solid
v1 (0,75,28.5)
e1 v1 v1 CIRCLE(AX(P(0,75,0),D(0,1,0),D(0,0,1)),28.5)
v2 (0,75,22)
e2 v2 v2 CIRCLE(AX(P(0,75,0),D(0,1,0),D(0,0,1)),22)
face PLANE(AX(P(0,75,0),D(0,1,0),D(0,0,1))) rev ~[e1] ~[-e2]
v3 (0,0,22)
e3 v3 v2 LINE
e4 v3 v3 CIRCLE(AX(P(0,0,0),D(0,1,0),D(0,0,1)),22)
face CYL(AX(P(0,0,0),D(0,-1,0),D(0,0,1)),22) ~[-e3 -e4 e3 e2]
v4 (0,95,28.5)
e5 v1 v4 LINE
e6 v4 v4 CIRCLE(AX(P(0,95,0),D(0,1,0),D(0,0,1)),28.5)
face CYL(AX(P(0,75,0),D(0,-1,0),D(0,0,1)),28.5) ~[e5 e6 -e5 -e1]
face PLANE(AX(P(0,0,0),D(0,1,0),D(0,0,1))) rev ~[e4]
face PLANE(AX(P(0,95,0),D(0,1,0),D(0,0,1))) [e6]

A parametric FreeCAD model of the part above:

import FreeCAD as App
import Part
import Sketcher

V = App.Vector
Q = App.Units.Quantity

doc = App.newDocument("Part")
params = doc.addObject("Spreadsheet::Sheet", "Params")
for row, (alias, value) in enumerate([
    ("sketch1_diameter", "44 mm"),
    ("pad1_length", "75 mm"),
    ("sketch2_diameter", "57 mm"),
    ("pad2_length", "20 mm"),
], start=1):
    params.set(f"A{row}", alias)
    params.set(f"B{row}", "=" + value)
    params.setAlias(f"B{row}", alias)

body = doc.addObject("PartDesign::Body", "Body")

# Sketch on XZ plane
sketch1 = doc.addObject("Sketcher::SketchObject", "Sketch")
body.addObject(sketch1)
sketch1.AttachmentSupport = (doc.XZ_Plane, [""])
sketch1.MapMode = "FlatFace"
sketch1.addGeometry(Part.Circle(V(0, 0, 0), V(0, 0, 1), 22), False)
sketch1.addConstraint([
    Sketcher.Constraint("Coincident", 0, 3, -1, 1),
    Sketcher.Constraint("Diameter", 0, Q("44 mm")),
])
sketch1.setExpression("Constraints[1]", "Params.sketch1_diameter")
pad1 = doc.addObject("PartDesign::Pad", "Pad")
body.addObject(pad1)
pad1.Profile = sketch1
pad1.setExpression("Length", "Params.pad1_length")
pad1.Reversed = True

# Sketch on XZ plane
sketch2 = doc.addObject("Sketcher::SketchObject", "Sketch001")
body.addObject(sketch2)
sketch2.AttachmentSupport = (doc.XZ_Plane, [""])
sketch2.MapMode = "FlatFace"
sketch2.AttachmentOffset = App.Placement(V(0, 0, -75), App.Rotation())
sketch2.addGeometry(Part.Circle(V(0, 0, 0), V(0, 0, 1), 28), False)
sketch2.addConstraint([
    Sketcher.Constraint("Coincident", 0, 3, -1, 1),
    Sketcher.Constraint("Diameter", 0, Q("57 mm")),
])
sketch2.setExpression("Constraints[1]", "Params.sketch2_diameter")
pad2 = doc.addObject("PartDesign::Pad", "Pad001")
body.addObject(pad2)
pad2.Profile = sketch2
pad2.setExpression("Length", "Params.pad2_length")
pad2.Reversed = True

doc.recompute()
